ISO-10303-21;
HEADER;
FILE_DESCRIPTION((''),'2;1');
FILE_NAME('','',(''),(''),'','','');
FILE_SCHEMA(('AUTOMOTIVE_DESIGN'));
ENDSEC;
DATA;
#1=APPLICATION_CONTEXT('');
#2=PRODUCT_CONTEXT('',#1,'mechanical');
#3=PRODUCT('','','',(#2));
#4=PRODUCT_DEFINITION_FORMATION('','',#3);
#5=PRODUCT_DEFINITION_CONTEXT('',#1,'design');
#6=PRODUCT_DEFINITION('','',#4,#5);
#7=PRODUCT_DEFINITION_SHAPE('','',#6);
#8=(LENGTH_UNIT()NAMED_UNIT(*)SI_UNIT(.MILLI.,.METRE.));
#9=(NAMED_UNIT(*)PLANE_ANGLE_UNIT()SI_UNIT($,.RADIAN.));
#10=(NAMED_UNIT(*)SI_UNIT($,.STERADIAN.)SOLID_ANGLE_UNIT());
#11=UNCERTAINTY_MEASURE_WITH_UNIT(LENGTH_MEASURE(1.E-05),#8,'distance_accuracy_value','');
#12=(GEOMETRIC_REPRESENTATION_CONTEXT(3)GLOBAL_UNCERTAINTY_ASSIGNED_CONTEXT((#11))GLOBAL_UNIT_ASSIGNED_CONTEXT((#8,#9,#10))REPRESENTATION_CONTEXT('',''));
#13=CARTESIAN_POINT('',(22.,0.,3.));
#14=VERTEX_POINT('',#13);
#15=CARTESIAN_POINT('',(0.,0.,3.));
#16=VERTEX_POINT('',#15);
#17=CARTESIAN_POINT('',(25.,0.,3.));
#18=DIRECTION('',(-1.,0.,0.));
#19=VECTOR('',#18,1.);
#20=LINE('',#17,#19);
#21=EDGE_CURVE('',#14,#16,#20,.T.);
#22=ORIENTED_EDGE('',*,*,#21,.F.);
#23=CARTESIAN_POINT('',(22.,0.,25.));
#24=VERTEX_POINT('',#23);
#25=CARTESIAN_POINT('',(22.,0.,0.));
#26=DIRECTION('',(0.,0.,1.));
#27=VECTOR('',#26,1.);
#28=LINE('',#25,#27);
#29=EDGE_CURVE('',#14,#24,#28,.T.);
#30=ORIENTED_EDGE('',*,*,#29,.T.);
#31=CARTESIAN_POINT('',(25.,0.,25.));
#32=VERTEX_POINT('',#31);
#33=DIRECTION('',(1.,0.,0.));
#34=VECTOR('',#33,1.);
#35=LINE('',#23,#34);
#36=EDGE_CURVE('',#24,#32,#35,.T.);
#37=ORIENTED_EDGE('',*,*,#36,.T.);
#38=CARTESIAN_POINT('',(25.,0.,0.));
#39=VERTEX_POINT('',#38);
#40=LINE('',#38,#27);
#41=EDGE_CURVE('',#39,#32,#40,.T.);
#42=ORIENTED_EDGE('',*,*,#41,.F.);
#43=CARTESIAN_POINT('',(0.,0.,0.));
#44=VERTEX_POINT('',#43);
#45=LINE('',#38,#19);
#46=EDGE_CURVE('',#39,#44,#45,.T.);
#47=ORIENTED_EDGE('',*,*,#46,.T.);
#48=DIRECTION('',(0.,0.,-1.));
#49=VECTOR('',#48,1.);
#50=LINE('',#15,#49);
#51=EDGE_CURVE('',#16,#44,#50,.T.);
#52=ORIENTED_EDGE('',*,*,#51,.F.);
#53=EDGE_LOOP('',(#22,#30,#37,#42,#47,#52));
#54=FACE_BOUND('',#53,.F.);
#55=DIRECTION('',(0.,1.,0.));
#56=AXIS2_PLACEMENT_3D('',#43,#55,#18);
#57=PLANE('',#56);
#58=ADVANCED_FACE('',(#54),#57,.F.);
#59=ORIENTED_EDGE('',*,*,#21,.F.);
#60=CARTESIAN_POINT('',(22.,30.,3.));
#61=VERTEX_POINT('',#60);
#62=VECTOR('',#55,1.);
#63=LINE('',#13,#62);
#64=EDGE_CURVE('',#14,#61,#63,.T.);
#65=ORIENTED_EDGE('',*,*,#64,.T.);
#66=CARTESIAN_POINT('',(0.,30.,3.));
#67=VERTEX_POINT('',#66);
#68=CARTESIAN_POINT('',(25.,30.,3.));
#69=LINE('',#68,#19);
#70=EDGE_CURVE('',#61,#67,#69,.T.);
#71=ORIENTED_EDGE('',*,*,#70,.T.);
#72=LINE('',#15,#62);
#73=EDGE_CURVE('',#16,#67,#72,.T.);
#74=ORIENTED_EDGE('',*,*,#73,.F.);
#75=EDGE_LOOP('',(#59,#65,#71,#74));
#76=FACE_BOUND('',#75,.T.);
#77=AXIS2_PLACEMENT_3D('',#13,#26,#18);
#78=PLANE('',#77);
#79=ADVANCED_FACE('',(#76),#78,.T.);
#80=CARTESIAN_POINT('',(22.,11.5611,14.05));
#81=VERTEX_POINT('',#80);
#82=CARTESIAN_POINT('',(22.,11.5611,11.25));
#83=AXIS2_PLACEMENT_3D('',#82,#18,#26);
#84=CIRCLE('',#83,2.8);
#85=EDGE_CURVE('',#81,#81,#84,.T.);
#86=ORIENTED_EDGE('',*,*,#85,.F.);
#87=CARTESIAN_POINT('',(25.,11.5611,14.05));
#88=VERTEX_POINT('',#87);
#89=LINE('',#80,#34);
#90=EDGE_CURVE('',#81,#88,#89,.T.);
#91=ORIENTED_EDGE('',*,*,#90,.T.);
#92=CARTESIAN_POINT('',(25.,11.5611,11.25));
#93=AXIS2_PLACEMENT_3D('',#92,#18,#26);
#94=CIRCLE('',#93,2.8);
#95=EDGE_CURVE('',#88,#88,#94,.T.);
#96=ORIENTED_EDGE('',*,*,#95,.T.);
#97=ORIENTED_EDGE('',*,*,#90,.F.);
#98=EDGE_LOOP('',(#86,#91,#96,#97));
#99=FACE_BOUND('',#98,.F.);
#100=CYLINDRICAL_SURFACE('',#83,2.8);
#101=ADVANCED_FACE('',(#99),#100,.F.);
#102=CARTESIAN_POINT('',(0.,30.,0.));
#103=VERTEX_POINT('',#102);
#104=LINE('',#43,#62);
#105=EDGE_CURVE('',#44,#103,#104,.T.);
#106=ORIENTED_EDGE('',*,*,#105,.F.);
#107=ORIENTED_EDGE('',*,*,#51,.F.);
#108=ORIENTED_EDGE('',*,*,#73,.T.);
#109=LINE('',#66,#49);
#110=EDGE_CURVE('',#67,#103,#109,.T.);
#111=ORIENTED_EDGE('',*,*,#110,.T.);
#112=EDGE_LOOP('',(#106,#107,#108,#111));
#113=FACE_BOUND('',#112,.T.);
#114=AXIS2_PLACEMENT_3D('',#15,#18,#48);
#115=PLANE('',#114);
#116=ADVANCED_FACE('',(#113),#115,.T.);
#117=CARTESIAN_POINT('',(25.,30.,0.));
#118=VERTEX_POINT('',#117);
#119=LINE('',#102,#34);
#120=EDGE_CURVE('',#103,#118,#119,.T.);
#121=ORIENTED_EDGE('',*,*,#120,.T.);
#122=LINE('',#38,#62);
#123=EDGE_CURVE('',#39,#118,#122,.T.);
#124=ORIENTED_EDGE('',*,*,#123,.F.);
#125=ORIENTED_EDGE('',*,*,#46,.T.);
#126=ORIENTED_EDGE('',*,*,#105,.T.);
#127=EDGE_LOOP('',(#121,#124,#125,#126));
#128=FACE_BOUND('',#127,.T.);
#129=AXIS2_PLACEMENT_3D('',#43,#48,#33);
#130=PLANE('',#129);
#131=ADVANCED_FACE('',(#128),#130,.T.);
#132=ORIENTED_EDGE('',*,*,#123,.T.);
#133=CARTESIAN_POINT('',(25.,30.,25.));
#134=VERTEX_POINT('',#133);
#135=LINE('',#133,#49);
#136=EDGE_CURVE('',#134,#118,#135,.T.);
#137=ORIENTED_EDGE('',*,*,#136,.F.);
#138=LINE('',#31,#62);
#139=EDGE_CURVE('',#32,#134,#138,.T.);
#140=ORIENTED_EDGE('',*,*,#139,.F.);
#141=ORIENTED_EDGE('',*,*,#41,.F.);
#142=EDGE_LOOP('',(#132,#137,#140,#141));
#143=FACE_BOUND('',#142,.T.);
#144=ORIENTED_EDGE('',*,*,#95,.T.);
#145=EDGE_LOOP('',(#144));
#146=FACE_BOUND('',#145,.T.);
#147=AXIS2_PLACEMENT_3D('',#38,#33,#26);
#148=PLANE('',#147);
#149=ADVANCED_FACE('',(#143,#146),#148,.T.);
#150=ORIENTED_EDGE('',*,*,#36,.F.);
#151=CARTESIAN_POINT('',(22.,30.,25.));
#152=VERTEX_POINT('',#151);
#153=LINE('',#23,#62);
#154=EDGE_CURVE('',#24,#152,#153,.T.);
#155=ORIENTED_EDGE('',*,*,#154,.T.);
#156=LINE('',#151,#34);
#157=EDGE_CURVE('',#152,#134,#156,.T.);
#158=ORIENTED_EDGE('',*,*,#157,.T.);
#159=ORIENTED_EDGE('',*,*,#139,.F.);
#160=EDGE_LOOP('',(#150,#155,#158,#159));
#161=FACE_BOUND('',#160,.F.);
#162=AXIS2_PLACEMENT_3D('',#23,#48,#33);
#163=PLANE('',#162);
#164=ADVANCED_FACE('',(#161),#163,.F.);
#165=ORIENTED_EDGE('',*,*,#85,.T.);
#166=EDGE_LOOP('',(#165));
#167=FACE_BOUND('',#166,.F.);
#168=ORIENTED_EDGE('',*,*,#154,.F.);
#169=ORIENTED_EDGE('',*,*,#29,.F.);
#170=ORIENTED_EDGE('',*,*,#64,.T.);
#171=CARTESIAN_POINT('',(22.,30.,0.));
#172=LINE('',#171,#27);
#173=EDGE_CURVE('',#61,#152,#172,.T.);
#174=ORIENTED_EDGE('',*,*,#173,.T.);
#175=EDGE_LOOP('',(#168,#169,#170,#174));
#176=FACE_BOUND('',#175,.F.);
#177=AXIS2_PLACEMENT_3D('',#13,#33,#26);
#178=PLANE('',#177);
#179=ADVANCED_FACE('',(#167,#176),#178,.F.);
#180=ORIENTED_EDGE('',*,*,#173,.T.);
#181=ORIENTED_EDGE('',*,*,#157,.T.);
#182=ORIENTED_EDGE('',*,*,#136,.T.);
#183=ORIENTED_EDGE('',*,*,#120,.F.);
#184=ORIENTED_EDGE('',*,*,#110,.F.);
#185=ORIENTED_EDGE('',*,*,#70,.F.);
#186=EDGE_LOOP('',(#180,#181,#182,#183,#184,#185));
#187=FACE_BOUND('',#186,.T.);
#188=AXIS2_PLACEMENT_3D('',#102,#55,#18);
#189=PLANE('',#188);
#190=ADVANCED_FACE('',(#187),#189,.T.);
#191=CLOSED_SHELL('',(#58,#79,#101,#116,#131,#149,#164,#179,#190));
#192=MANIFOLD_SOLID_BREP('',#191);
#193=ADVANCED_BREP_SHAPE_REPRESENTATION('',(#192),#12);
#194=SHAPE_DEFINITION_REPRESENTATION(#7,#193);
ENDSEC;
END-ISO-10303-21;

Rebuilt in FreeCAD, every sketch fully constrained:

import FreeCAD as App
import Part
import Sketcher
from FreeCAD import Vector
Q = App.Units.Quantity


def add_polygon(sketch, points):
    """Adds a closed chain of lines whose ends are joined by coincident constraints."""
    first, n = sketch.GeometryCount, len(points)
    for a, b in zip(points, points[1:] + points[:1]):
        sketch.addGeometry(Part.LineSegment(App.Vector(*a, 0), App.Vector(*b, 0)), False)
    for i in range(n):
        sketch.addConstraint(Sketcher.Constraint("Coincident", first + i, 2, first + (i + 1) % n, 1))

doc = App.newDocument("Part")
params = doc.addObject("Spreadsheet::Sheet", "Params")
for row, (alias, value) in enumerate([
    ("sketch1_width", "3 mm"),
    ("sketch1_width2", "25 mm"),
    ("pad1_length", "30 mm"),
    ("sketch2_diameter", "3 mm"),
    ("sketch2_diameter2", "5.6 mm"),
    ("pocket1_length", "30 mm"),
], start=1):
    params.set(f"A{row}", alias)
    params.set(f"B{row}", "=" + value)
    params.setAlias(f"B{row}", alias)

body = doc.addObject("PartDesign::Body", "Body")

# Sketch on XZ plane
sketch1 = body.newObject("Sketcher::SketchObject", "Sketch")
sketch1.AttachmentSupport = (doc.getObject("XZ_Plane"), [""])
sketch1.MapMode = "FlatFace"
add_polygon(sketch1, [(0, 0), (0, 3), (22, 3), (22, 25), (25, 25), (25, 0)])  # lines 0-5
sketch1.addConstraint(Sketcher.Constraint("Vertical", 0))
sketch1.addConstraint(Sketcher.Constraint("Horizontal", 1))
sketch1.addConstraint(Sketcher.Constraint("Vertical", 2))
sketch1.addConstraint(Sketcher.Constraint("Horizontal", 3))
sketch1.addConstraint(Sketcher.Constraint("Vertical", 4))
sketch1.addConstraint(Sketcher.Constraint("Horizontal", 5))
sketch1.addConstraint(Sketcher.Constraint("Coincident", 5, 2, -1, 1))
sketch1.addConstraint(Sketcher.Constraint("Equal", 3, 0))
sketch1.addConstraint(Sketcher.Constraint("Equal", 1, 2))
sketch1.addConstraint(Sketcher.Constraint("DistanceX", 3, 1, 3, 2, Q("3 mm")))
sketch1.addConstraint(Sketcher.Constraint("DistanceX", 5, 2, 5, 1, Q("25 mm")))
sketch1.setExpression("Constraints[15]", "Params.sketch1_width")
sketch1.setExpression("Constraints[16]", "Params.sketch1_width2")
pad1 = body.newObject("PartDesign::Pad", "Pad")
pad1.Profile = sketch1
pad1.setExpression("Length", "Params.pad1_length")
pad1.Reversed = True

# Sketch on YZ plane
sketch2 = body.newObject("Sketcher::SketchObject", "Sketch001")
sketch2.AttachmentSupport = (doc.getObject("YZ_Plane"), [""])
sketch2.MapMode = "FlatFace"
sketch2.AttachmentOffset = App.Placement(Vector(0, 0, 22), App.Rotation())
sketch2.addGeometry(Part.Circle(Vector(11.5611, 11.25, 0), Vector(0, 0, 1), 2.8), False)
sketch2.addGeometry(Part.Circle(Vector(32.0611, 20, 0), Vector(0, 0, 1), 1.5), False)
sketch2.addGeometry(Part.Circle(Vector(32.0611, 2.5, 0), Vector(0, 0, 1), 1.5), False)
sketch2.addConstraint(Sketcher.Constraint("Equal", 1, 2))
sketch2.addConstraint(Sketcher.Constraint("Vertical", 1, 3, 2, 3))
sketch2.addConstraint(Sketcher.Constraint("Diameter", 1, Q("3 mm")))
sketch2.addConstraint(Sketcher.Constraint("Diameter", 0, Q("5.6 mm")))
sketch2.addConstraint(Sketcher.Constraint("DistanceY", -1, 1, 1, 3, Q("20 mm")))
sketch2.addConstraint(Sketcher.Constraint("DistanceY", -1, 1, 2, 3, Q("2.5 mm")))
sketch2.addConstraint(Sketcher.Constraint("DistanceX", 0, 3, 1, 3, Q("20.5 mm")))
sketch2.addConstraint(Sketcher.Constraint("DistanceY", -1, 1, 0, 3, Q("11.25 mm")))
sketch2.addConstraint(Sketcher.Constraint("DistanceX", -1, 1, 0, 3, Q("11.561 mm")))
sketch2.setExpression("Constraints[2]", "Params.sketch2_diameter")
sketch2.setExpression("Constraints[3]", "Params.sketch2_diameter2")
pocket1 = body.newObject("PartDesign::Pocket", "Pocket")
pocket1.Profile = sketch2
pocket1.setExpression("Length", "Params.pocket1_length")
pocket1.Reversed = True

doc.recompute()
